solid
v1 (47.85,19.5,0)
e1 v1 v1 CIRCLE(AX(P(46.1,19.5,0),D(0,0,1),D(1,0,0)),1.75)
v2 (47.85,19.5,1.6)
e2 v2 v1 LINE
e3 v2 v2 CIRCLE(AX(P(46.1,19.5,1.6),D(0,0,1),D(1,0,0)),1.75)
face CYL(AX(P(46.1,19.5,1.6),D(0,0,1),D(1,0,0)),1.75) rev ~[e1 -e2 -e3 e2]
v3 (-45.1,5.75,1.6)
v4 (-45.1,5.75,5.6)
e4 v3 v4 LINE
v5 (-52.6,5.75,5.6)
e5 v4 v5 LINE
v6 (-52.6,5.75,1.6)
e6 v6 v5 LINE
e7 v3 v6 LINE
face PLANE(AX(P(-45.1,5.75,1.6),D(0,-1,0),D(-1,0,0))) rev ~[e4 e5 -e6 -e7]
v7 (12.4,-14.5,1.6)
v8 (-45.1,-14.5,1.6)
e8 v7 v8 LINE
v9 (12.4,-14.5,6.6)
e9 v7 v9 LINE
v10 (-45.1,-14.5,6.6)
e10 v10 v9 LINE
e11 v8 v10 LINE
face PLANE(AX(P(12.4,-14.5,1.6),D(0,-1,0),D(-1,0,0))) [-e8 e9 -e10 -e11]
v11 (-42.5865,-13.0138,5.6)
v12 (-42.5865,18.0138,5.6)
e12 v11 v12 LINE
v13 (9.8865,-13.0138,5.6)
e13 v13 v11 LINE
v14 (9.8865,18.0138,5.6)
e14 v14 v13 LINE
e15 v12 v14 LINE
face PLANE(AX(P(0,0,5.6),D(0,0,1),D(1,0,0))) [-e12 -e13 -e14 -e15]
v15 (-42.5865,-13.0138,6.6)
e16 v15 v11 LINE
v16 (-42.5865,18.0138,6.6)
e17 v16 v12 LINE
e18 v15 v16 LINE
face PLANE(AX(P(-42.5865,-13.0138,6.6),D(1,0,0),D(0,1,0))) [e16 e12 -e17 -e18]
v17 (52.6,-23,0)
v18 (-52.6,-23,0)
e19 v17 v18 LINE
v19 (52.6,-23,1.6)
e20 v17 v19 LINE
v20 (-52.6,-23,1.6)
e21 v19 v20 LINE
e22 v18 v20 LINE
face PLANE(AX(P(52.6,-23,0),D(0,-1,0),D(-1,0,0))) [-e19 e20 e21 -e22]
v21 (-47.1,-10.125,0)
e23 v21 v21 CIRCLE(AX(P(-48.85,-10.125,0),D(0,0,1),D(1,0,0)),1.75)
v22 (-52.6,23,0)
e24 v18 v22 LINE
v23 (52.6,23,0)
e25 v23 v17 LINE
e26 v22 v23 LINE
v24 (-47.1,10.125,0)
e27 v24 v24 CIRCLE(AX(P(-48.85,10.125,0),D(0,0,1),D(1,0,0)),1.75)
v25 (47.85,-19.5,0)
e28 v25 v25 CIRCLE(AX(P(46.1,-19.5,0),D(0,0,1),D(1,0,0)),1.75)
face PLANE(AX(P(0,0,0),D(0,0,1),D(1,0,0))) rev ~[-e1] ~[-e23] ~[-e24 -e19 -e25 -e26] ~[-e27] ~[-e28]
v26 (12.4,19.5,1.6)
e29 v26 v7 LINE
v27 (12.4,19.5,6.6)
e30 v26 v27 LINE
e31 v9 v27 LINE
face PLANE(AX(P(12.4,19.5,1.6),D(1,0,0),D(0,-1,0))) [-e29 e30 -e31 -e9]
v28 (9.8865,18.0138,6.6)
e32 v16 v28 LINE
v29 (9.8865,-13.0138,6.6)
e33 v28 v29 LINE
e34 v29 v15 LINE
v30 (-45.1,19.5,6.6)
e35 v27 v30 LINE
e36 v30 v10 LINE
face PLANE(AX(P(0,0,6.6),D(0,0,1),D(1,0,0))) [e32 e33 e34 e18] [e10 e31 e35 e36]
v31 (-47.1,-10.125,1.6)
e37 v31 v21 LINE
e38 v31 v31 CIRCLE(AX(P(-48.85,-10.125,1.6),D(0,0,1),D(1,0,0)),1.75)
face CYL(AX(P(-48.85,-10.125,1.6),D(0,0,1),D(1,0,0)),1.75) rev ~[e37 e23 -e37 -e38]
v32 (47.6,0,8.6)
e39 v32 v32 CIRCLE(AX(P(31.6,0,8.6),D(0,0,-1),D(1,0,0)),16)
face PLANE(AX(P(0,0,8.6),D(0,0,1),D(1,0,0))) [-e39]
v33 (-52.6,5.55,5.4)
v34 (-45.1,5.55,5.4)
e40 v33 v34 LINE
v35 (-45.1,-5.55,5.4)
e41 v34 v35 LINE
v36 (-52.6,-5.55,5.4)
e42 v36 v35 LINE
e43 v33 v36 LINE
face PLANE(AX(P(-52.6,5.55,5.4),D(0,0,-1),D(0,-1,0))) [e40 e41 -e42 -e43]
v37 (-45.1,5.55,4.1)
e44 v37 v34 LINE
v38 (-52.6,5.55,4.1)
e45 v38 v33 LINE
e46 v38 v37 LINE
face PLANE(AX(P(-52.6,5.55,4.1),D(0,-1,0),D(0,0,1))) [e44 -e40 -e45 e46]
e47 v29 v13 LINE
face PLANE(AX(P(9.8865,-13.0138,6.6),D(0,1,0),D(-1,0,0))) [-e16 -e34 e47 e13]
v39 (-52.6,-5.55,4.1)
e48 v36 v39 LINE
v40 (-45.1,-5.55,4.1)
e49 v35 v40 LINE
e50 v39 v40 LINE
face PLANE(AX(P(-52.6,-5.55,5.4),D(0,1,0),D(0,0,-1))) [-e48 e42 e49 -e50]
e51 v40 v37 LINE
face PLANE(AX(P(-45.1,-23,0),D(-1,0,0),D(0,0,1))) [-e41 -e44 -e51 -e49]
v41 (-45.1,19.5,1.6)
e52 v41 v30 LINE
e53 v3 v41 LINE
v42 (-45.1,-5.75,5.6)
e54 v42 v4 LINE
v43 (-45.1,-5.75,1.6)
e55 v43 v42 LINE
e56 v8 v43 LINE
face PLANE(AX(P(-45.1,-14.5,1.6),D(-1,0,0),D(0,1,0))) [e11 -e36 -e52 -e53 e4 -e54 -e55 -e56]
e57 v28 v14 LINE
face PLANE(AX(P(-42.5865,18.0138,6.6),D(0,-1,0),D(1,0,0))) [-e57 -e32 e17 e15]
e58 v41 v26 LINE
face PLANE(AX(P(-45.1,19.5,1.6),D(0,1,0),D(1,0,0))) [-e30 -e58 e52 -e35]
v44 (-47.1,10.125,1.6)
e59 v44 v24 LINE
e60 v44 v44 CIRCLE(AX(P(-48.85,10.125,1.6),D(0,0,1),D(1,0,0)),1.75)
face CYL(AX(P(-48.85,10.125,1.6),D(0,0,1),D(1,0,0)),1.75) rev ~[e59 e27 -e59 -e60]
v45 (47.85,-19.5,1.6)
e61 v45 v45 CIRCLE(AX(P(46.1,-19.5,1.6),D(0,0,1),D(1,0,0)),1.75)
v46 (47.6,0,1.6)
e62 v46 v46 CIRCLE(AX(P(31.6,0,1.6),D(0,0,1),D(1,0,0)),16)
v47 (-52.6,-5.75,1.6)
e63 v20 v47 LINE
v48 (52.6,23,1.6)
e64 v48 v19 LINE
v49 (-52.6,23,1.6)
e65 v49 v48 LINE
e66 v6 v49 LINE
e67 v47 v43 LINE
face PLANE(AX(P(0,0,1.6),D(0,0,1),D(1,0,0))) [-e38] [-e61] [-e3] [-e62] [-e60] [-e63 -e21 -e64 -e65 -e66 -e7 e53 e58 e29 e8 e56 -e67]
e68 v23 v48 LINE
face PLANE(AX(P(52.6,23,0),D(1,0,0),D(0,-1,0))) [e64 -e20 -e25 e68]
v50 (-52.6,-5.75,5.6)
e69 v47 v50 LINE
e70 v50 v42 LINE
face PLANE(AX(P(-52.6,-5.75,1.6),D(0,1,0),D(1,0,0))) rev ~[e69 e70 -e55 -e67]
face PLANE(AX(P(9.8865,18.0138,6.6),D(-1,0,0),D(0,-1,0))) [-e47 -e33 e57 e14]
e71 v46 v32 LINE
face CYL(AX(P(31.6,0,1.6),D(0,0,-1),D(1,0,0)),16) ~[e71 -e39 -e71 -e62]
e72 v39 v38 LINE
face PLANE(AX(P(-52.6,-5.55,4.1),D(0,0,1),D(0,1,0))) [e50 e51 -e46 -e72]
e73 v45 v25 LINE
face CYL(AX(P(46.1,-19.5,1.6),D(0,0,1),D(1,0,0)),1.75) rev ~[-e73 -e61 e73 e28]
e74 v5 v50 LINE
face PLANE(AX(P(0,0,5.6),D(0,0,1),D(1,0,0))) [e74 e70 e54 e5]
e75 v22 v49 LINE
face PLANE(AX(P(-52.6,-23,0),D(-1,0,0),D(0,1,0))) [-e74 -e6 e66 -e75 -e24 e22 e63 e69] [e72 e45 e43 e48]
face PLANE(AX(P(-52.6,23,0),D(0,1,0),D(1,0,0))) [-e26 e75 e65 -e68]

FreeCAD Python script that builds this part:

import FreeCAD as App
import Part
import Sketcher
Q = App.Units.Quantity


def add_polygon(sketch, points):
    """Adds a closed chain of lines whose ends are joined by coincident constraints."""
    first, n = sketch.GeometryCount, len(points)
    for a, b in zip(points, points[1:] + points[:1]):
        sketch.addGeometry(Part.LineSegment(App.Vector(*a, 0), App.Vector(*b, 0)), False)
    for i in range(n):
        sketch.addConstraint(Sketcher.Constraint("Coincident", first + i, 2, first + (i + 1) % n, 1))

doc = App.newDocument("Part")
body = doc.addObject("PartDesign::Body", "Body")

sketch1 = doc.addObject("Sketcher::SketchObject", "Sketch")
body.addObject(sketch1)
sketch1.AttachmentSupport = (doc.XY_Plane, [""])
sketch1.MapMode = "FlatFace"
add_polygon(sketch1, [(53, 23), (-53, 23), (-53, -23), (53, -23)])
sketch1.addConstraint([
    Sketcher.Constraint("Horizontal", 0),
    Sketcher.Constraint("Vertical", 1),
    Sketcher.Constraint("Horizontal", 2),
    Sketcher.Constraint("Vertical", 3),
    Sketcher.Constraint("Symmetric", 0, 2, 2, 2, -1, 1),
    Sketcher.Constraint("DistanceY", 1, 2, 1, 1, Q("46 mm")),
    Sketcher.Constraint("DistanceX", 0, 2, 0, 1, Q("105.2 mm")),
])
pad1 = doc.addObject("PartDesign::Pad", "Pad")
body.addObject(pad1)
pad1.Profile = sketch1
pad1.Length = 1.6

sketch2 = doc.addObject("Sketcher::SketchObject", "Sketch001")
body.addObject(sketch2)
sketch2.AttachmentSupport = (doc.XY_Plane, [""])
sketch2.MapMode = "FlatFace"
sketch2.AttachmentOffset = App.Placement(App.Vector(0, 0, 1.6), App.Rotation())
add_polygon(sketch2, [(12, 20), (-45, 20), (-45, -14), (12, -14)])
sketch2.addGeometry(Part.Circle(App.Vector(32, 0, 0), App.Vector(0, 0, 1), 16), False)
sketch2.addConstraint([
    Sketcher.Constraint("Horizontal", 0),
    Sketcher.Constraint("Vertical", 1),
    Sketcher.Constraint("Horizontal", 2),
    Sketcher.Constraint("Vertical", 3),
    Sketcher.Constraint("PointOnObject", 4, 3, -1),
    Sketcher.Constraint("Diameter", 4, Q("32 mm")),
    Sketcher.Constraint("DistanceY", 1, 2, 1, 1, Q("34 mm")),
    Sketcher.Constraint("DistanceX", 0, 2, 0, 1, Q("57.5 mm")),
    Sketcher.Constraint("DistanceX", -1, 1, 4, 3, Q("31.6 mm")),
    Sketcher.Constraint("DistanceX", 0, 2, -1, 1, Q("45.1 mm")),
    Sketcher.Constraint("DistanceY", -1, 1, 0, 2, Q("19.5 mm")),
])
pad2 = doc.addObject("PartDesign::Pad", "Pad001")
body.addObject(pad2)
pad2.Profile = sketch2
pad2.Length = 7

sketch3 = doc.addObject("Sketcher::SketchObject", "Sketch002")
body.addObject(sketch3)
sketch3.AttachmentSupport = (doc.XY_Plane, [""])
sketch3.MapMode = "FlatFace"
sketch3.AttachmentOffset = App.Placement(App.Vector(0, 0, 8.6), App.Rotation())
add_polygon(sketch3, [(12, -14), (12, 20), (-45, 20), (-45, -14)])
sketch3.addConstraint([
    Sketcher.Constraint("Vertical", 0),
    Sketcher.Constraint("Horizontal", 1),
    Sketcher.Constraint("Vertical", 2),
    Sketcher.Constraint("Horizontal", 3),
    Sketcher.Constraint("DistanceY", 0, 1, 0, 2, Q("34 mm")),
    Sketcher.Constraint("DistanceX", 1, 2, 1, 1, Q("57.5 mm")),
    Sketcher.Constraint("DistanceX", -1, 1, 0, 2, Q("12.4 mm")),
    Sketcher.Constraint("DistanceY", -1, 1, 0, 2, Q("19.5 mm")),
])
pocket1 = doc.addObject("PartDesign::Pocket", "Pocket")
body.addObject(pocket1)
pocket1.Profile = sketch3
pocket1.Length = 2

sketch4 = doc.addObject("Sketcher::SketchObject", "Sketch003")
body.addObject(sketch4)
sketch4.AttachmentSupport = (doc.XY_Plane, [""])
sketch4.MapMode = "FlatFace"
sketch4.AttachmentOffset = App.Placement(App.Vector(0, 0, 6.6), App.Rotation())
add_polygon(sketch4, [(10, 18), (-43, 18), (-43, -13), (10, -13)])
sketch4.addConstraint([
    Sketcher.Constraint("Horizontal", 0),
    Sketcher.Constraint("Vertical", 1),
    Sketcher.Constraint("Horizontal", 2),
    Sketcher.Constraint("Vertical", 3),
    Sketcher.Constraint("DistanceX", 0, 2, 0, 1, Q("52.473 mm")),
    Sketcher.Constraint("DistanceY", 1, 2, 1, 1, Q("31.0276 mm")),
    Sketcher.Constraint("DistanceX", 0, 2, -1, 1, Q("42.5865 mm")),
    Sketcher.Constraint("DistanceY", -1, 1, 0, 2, Q("18.0138 mm")),
])
pocket2 = doc.addObject("PartDesign::Pocket", "Pocket001")
body.addObject(pocket2)
pocket2.Profile = sketch4
pocket2.Length = 1

sketch5 = doc.addObject("Sketcher::SketchObject", "Sketch004")
body.addObject(sketch5)
sketch5.AttachmentSupport = (doc.XY_Plane, [""])
sketch5.MapMode = "FlatFace"
sketch5.AttachmentOffset = App.Placement(App.Vector(0, 0, 1.6), App.Rotation())
add_polygon(sketch5, [(-45, 6), (-53, 6), (-53, -6), (-45, -6)])
sketch5.addConstraint([
    Sketcher.Constraint("Horizontal", 0),
    Sketcher.Constraint("Vertical", 1),
    Sketcher.Constraint("Horizontal", 2),
    Sketcher.Constraint("Vertical", 3),
    Sketcher.Constraint("DistanceY", 1, 2, 1, 1, Q("11.5 mm")),
    Sketcher.Constraint("DistanceX", 0, 2, 0, 1, Q("7.5 mm")),
    Sketcher.Constraint("DistanceX", 0, 2, -1, 1, Q("52.6 mm")),
    Sketcher.Constraint("DistanceY", -1, 1, 0, 2, Q("5.75 mm")),
])
pad3 = doc.addObject("PartDesign::Pad", "Pad002")
body.addObject(pad3)
pad3.Profile = sketch5
pad3.Length = 4

sketch6 = doc.addObject("Sketcher::SketchObject", "Sketch005")
body.addObject(sketch6)
sketch6.AttachmentSupport = (doc.YZ_Plane, [""])
sketch6.MapMode = "FlatFace"
sketch6.AttachmentOffset = App.Placement(App.Vector(0, 0, -52.6), App.Rotation())
add_polygon(sketch6, [(5.5, 5.4), (5.5, 4.1), (-5.5, 4.1), (-5.5, 5.4)])
sketch6.addConstraint([
    Sketcher.Constraint("Vertical", 0),
    Sketcher.Constraint("Horizontal", 1),
    Sketcher.Constraint("Vertical", 2),
    Sketcher.Constraint("Horizontal", 3),
    Sketcher.Constraint("DistanceX", 1, 2, 1, 1, Q("11.1 mm")),
    Sketcher.Constraint("DistanceY", 0, 2, 0, 1, Q("1.3 mm")),
    Sketcher.Constraint("DistanceY", -1, 1, 0, 2, Q("4.1 mm")),
    Sketcher.Constraint("DistanceX", -1, 1, 0, 2, Q("5.55 mm")),
])
pocket3 = doc.addObject("PartDesign::Pocket", "Pocket002")
body.addObject(pocket3)
pocket3.Profile = sketch6
pocket3.Length = 7.5
pocket3.Reversed = True

sketch7 = doc.addObject("Sketcher::SketchObject", "Sketch006")
body.addObject(sketch7)
sketch7.AttachmentSupport = (doc.XY_Plane, [""])
sketch7.MapMode = "FlatFace"
sketch7.AttachmentOffset = App.Placement(App.Vector(0, 0, 1.6), App.Rotation())
sketch7.addGeometry([
    Part.Circle(App.Vector(-48.9, -10.1, 0), App.Vector(0, 0, 1), 1.8),
    Part.Circle(App.Vector(-48.9, 10.1, 0), App.Vector(0, 0, 1), 1.8),
    Part.Circle(App.Vector(46.1, 19.5, 0), App.Vector(0, 0, 1), 1.8),
    Part.Circle(App.Vector(46.1, -19.5, 0), App.Vector(0, 0, 1), 1.8),
], False)
sketch7.addConstraint([
    Sketcher.Constraint("Equal", 0, 1),
    Sketcher.Constraint("Equal", 1, 2),
    Sketcher.Constraint("Equal", 2, 3),
    Sketcher.Constraint("Symmetric", 0, 3, 1, 3, -1),
    Sketcher.Constraint("Symmetric", 2, 3, 3, 3, -1),
    Sketcher.Constraint("Diameter", 0, Q("3.5 mm")),
    Sketcher.Constraint("DistanceY", 3, 3, 2, 3, Q("39 mm")),
    Sketcher.Constraint("DistanceY", 0, 3, 1, 3, Q("20.25 mm")),
    Sketcher.Constraint("DistanceX", -1, 1, 2, 3, Q("46.1 mm")),
    Sketcher.Constraint("DistanceX", 0, 3, -1, 1, Q("48.85 mm")),
])
pocket4 = doc.addObject("PartDesign::Pocket", "Pocket003")
body.addObject(pocket4)
pocket4.Profile = sketch7
pocket4.Type = "ThroughAll"

doc.recompute()
